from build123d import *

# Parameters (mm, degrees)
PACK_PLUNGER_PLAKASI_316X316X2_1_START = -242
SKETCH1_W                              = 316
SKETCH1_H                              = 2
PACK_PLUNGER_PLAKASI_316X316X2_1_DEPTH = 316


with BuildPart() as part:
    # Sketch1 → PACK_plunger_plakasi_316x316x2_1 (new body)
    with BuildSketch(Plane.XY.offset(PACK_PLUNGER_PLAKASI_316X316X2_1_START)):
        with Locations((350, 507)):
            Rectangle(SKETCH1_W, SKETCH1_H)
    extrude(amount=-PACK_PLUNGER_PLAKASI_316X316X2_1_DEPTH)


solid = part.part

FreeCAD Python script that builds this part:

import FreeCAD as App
import Part
import Sketcher
Q = App.Units.Quantity

doc = App.newDocument("Part")
body = doc.addObject("PartDesign::Body", "Body")

sketch1 = body.newObject("Sketcher::SketchObject", "Sketch")
sketch1.AttachmentSupport = (doc.getObject("XY_Plane"), [""])
sketch1.MapMode = "FlatFace"
sketch1.AttachmentOffset = App.Placement(App.Vector(0, 0, -242), App.Rotation())
sketch1.addGeometry([
    Part.LineSegment(App.Vector(192, 508, 0), App.Vector(192, 506, 0)),
    Part.LineSegment(App.Vector(192, 506, 0), App.Vector(508, 506, 0)),
    Part.LineSegment(App.Vector(508, 506, 0), App.Vector(508, 508, 0)),
    Part.LineSegment(App.Vector(508, 508, 0), App.Vector(192, 508, 0)),
], False)
sketch1.addConstraint([
    Sketcher.Constraint("Coincident", 0, 2, 1, 1),
    Sketcher.Constraint("Coincident", 1, 2, 2, 1),
    Sketcher.Constraint("Coincident", 2, 2, 3, 1),
    Sketcher.Constraint("Coincident", 3, 2, 0, 1),
    Sketcher.Constraint("Vertical", 0),
    Sketcher.Constraint("Horizontal", 1),
    Sketcher.Constraint("Vertical", 2),
    Sketcher.Constraint("Horizontal", 3),
    Sketcher.Constraint("DistanceX", 1, 1, 1, 2, Q("316 mm")),
    Sketcher.Constraint("DistanceY", 0, 2, 0, 1, Q("2 mm")),
    Sketcher.Constraint("DistanceX", -1, 1, 0, 2, Q("192 mm")),
    Sketcher.Constraint("DistanceY", -1, 1, 0, 2, Q("506 mm")),
])
pad1 = body.newObject("PartDesign::Pad", "Pad")
pad1.Profile = sketch1
pad1.Length = 316
pad1.Reversed = True

doc.recompute()
